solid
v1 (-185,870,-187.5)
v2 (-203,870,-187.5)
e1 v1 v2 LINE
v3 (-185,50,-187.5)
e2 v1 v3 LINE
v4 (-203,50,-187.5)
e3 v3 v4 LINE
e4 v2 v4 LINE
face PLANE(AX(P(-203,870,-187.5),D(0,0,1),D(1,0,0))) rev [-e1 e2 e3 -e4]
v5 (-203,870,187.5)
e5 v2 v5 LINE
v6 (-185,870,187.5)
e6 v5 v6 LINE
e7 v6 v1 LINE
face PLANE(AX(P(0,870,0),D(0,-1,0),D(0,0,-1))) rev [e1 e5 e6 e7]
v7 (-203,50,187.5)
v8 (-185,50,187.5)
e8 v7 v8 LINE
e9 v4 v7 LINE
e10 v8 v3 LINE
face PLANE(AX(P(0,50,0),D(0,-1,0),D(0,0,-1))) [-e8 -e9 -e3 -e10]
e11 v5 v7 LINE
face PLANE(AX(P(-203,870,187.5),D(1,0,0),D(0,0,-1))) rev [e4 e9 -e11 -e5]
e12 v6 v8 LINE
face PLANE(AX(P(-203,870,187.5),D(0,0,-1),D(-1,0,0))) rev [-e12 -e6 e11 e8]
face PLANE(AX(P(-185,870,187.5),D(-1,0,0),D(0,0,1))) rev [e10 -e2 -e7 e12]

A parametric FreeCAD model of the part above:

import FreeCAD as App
import Part
import Sketcher

doc = App.newDocument("Part")
body = doc.addObject("PartDesign::Body", "Body")

# Sketch on XZ plane
sketch1 = doc.addObject("Sketcher::SketchObject", "Sketch")
body.addObject(sketch1)
sketch1.AttachmentSupport = (doc.XZ_Plane, [""])
sketch1.MapMode = "FlatFace"
sketch1.AttachmentOffset = App.Placement(App.Vector(0, 0, -50), App.Rotation())
sketch1.addGeometry(Part.LineSegment(App.Vector(-203, -188, 0), App.Vector(-203, 188, 0)), False)
sketch1.addGeometry(Part.LineSegment(App.Vector(-203, 188, 0), App.Vector(-185, 188, 0)), False)
sketch1.addGeometry(Part.LineSegment(App.Vector(-185, 188, 0), App.Vector(-185, -188, 0)), False)
sketch1.addGeometry(Part.LineSegment(App.Vector(-185, -188, 0), App.Vector(-203, -188, 0)), False)
sketch1.addConstraint(Sketcher.Constraint("Coincident", 0, 2, 1, 1))
sketch1.addConstraint(Sketcher.Constraint("Coincident", 1, 2, 2, 1))
sketch1.addConstraint(Sketcher.Constraint("Coincident", 2, 2, 3, 1))
sketch1.addConstraint(Sketcher.Constraint("Coincident", 3, 2, 0, 1))
sketch1.addConstraint(Sketcher.Constraint("Vertical", 0))
sketch1.addConstraint(Sketcher.Constraint("Horizontal", 1))
sketch1.addConstraint(Sketcher.Constraint("Vertical", 2))
sketch1.addConstraint(Sketcher.Constraint("Horizontal", 3))
sketch1.addConstraint(Sketcher.Constraint("DistanceX", 1, 1, 1, 2, 18.0))
sketch1.addConstraint(Sketcher.Constraint("DistanceY", 0, 1, 0, 2, 375.0))
sketch1.addConstraint(Sketcher.Constraint("DistanceX", 0, 2, -1, 1, 203.0))
sketch1.addConstraint(Sketcher.Constraint("DistanceY", -1, 1, 0, 2, 187.5))
pad1 = doc.addObject("PartDesign::Pad", "Pad")
body.addObject(pad1)
pad1.Profile = sketch1
pad1.Length = 820
pad1.Reversed = True

doc.recompute()
